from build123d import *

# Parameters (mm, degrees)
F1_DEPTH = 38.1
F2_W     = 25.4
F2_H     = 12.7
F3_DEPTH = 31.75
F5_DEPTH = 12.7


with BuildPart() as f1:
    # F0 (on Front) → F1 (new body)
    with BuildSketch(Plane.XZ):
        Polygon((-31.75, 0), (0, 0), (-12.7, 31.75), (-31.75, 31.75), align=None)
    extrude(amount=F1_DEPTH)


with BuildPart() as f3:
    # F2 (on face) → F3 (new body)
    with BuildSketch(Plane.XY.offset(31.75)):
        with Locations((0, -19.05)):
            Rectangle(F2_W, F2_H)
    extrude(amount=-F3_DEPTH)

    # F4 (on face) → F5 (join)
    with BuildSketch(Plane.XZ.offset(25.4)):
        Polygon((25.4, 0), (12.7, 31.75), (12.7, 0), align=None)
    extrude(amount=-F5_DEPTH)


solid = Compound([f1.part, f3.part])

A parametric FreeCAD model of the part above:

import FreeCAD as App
import Part
import Sketcher

V = App.Vector
Q = App.Units.Quantity

doc = App.newDocument("Part")
params = doc.addObject("Spreadsheet::Sheet", "Params")
for row, (alias, value) in enumerate([
    ("sketch1_width", "1.25 in"),
    ("sketch1_width2", "0.75 in"),
    ("pad1_length", "1.5 in"),
    ("sketch2_width", "1 in"),
    ("sketch2_height", "0.5 in"),
    ("pad2_length", "1.25 in"),
    ("sketch3_width", "0.5 in"),
    ("sketch3_height", "1.25 in"),
    ("pad3_length", "0.5 in"),
], start=1):
    params.set(f"A{row}", alias)
    params.set(f"B{row}", "=" + value)
    params.setAlias(f"B{row}", alias)

body = doc.addObject("PartDesign::Body", "Body")

# Sketch on XZ plane
sketch1 = body.newObject("Sketcher::SketchObject", "Sketch")
sketch1.AttachmentSupport = (doc.getObject("XZ_Plane"), [""])
sketch1.MapMode = "FlatFace"
sketch1.addGeometry(Part.LineSegment(V(-31.75, 0, 0), V(0, 0, 0)), False)
sketch1.addGeometry(Part.LineSegment(V(0, 0, 0), V(-12.7, 31.75, 0)), False)
sketch1.addGeometry(Part.LineSegment(V(-12.7, 31.75, 0), V(-31.75, 31.75, 0)), False)
sketch1.addGeometry(Part.LineSegment(V(-31.75, 31.75, 0), V(-31.75, 0, 0)), False)
sketch1.addConstraint(Sketcher.Constraint("Coincident", 0, 2, 1, 1))
sketch1.addConstraint(Sketcher.Constraint("Coincident", 1, 2, 2, 1))
sketch1.addConstraint(Sketcher.Constraint("Coincident", 2, 2, 3, 1))
sketch1.addConstraint(Sketcher.Constraint("Coincident", 3, 2, 0, 1))
sketch1.addConstraint(Sketcher.Constraint("Horizontal", 0))
sketch1.addConstraint(Sketcher.Constraint("Horizontal", 2))
sketch1.addConstraint(Sketcher.Constraint("Vertical", 3))
sketch1.addConstraint(Sketcher.Constraint("Coincident", 0, 2, -1, 1))
sketch1.addConstraint(Sketcher.Constraint("Equal", 0, 3))
sketch1.addConstraint(Sketcher.Constraint("DistanceX", 0, 1, 0, 2, Q("1.25 in")))
sketch1.addConstraint(Sketcher.Constraint("DistanceX", 2, 2, 2, 1, Q("0.75 in")))
sketch1.setExpression("Constraints[9]", "Params.sketch1_width")
sketch1.setExpression("Constraints[10]", "Params.sketch1_width2")
pad1 = body.newObject("PartDesign::Pad", "Pad")
pad1.Profile = sketch1
pad1.setExpression("Length", "Params.pad1_length")
body2 = doc.addObject("PartDesign::Body", "Body001")

# Sketch on XY plane
sketch2 = body2.newObject("Sketcher::SketchObject", "Sketch001")
sketch2.AttachmentSupport = (doc.getObject("XY_Plane001"), [""])
sketch2.MapMode = "FlatFace"
sketch2.AttachmentOffset = App.Placement(V(0, 0, 1.25 * 25.4), App.Rotation())
sketch2.addGeometry(Part.LineSegment(V(-12.7, -12.7, 0), V(-12.7, -25.4, 0)), False)
sketch2.addGeometry(Part.LineSegment(V(-12.7, -25.4, 0), V(12.7, -25.4, 0)), False)
sketch2.addGeometry(Part.LineSegment(V(12.7, -25.4, 0), V(12.7, -12.7, 0)), False)
sketch2.addGeometry(Part.LineSegment(V(12.7, -12.7, 0), V(-12.7, -12.7, 0)), False)
sketch2.addConstraint(Sketcher.Constraint("Coincident", 0, 2, 1, 1))
sketch2.addConstraint(Sketcher.Constraint("Coincident", 1, 2, 2, 1))
sketch2.addConstraint(Sketcher.Constraint("Coincident", 2, 2, 3, 1))
sketch2.addConstraint(Sketcher.Constraint("Coincident", 3, 2, 0, 1))
sketch2.addConstraint(Sketcher.Constraint("Vertical", 0))
sketch2.addConstraint(Sketcher.Constraint("Horizontal", 1))
sketch2.addConstraint(Sketcher.Constraint("Vertical", 2))
sketch2.addConstraint(Sketcher.Constraint("Horizontal", 3))
sketch2.addConstraint(Sketcher.Constraint("DistanceX", 1, 1, 1, 2, Q("1 in")))
sketch2.addConstraint(Sketcher.Constraint("DistanceY", 0, 2, 0, 1, Q("0.5 in")))
sketch2.addConstraint(Sketcher.Constraint("DistanceY", 0, 2, -1, 1, Q("1 in")))
sketch2.addConstraint(Sketcher.Constraint("DistanceX", 0, 2, -1, 1, Q("0.5 in")))
sketch2.setExpression("Constraints[8]", "Params.sketch2_width")
sketch2.setExpression("Constraints[9]", "Params.sketch2_height")
pad2 = body2.newObject("PartDesign::Pad", "Pad001")
pad2.Profile = sketch2
pad2.setExpression("Length", "Params.pad2_length")
pad2.Reversed = True

# Sketch on XZ plane
sketch3 = body2.newObject("Sketcher::SketchObject", "Sketch002")
sketch3.AttachmentSupport = (doc.getObject("XZ_Plane001"), [""])
sketch3.MapMode = "FlatFace"
sketch3.AttachmentOffset = App.Placement(V(0, 0, 1 * 25.4), App.Rotation())
sketch3.addGeometry(Part.LineSegment(V(25.4, 0, 0), V(12.7, 31.75, 0)), False)
sketch3.addGeometry(Part.LineSegment(V(12.7, 31.75, 0), V(12.7, 0, 0)), False)
sketch3.addGeometry(Part.LineSegment(V(12.7, 0, 0), V(25.4, 0, 0)), False)
sketch3.addConstraint(Sketcher.Constraint("Coincident", 0, 2, 1, 1))
sketch3.addConstraint(Sketcher.Constraint("Coincident", 1, 2, 2, 1))
sketch3.addConstraint(Sketcher.Constraint("Coincident", 2, 2, 0, 1))
sketch3.addConstraint(Sketcher.Constraint("Vertical", 1))
sketch3.addConstraint(Sketcher.Constraint("Horizontal", 2))
sketch3.addConstraint(Sketcher.Constraint("PointOnObject", 1, 2, -1))
sketch3.addConstraint(Sketcher.Constraint("DistanceX", 2, 1, 2, 2, Q("0.5 in")))
sketch3.addConstraint(Sketcher.Constraint("DistanceX", -1, 1, 2, 2, Q("1 in")))
sketch3.addConstraint(Sketcher.Constraint("DistanceY", 1, 2, 1, 1, Q("1.25 in")))
sketch3.setExpression("Constraints[6]", "Params.sketch3_width")
sketch3.setExpression("Constraints[8]", "Params.sketch3_height")
pad3 = body2.newObject("PartDesign::Pad", "Pad002")
pad3.Profile = sketch3
pad3.setExpression("Length", "Params.pad3_length")
pad3.Reversed = True

doc.recompute()
